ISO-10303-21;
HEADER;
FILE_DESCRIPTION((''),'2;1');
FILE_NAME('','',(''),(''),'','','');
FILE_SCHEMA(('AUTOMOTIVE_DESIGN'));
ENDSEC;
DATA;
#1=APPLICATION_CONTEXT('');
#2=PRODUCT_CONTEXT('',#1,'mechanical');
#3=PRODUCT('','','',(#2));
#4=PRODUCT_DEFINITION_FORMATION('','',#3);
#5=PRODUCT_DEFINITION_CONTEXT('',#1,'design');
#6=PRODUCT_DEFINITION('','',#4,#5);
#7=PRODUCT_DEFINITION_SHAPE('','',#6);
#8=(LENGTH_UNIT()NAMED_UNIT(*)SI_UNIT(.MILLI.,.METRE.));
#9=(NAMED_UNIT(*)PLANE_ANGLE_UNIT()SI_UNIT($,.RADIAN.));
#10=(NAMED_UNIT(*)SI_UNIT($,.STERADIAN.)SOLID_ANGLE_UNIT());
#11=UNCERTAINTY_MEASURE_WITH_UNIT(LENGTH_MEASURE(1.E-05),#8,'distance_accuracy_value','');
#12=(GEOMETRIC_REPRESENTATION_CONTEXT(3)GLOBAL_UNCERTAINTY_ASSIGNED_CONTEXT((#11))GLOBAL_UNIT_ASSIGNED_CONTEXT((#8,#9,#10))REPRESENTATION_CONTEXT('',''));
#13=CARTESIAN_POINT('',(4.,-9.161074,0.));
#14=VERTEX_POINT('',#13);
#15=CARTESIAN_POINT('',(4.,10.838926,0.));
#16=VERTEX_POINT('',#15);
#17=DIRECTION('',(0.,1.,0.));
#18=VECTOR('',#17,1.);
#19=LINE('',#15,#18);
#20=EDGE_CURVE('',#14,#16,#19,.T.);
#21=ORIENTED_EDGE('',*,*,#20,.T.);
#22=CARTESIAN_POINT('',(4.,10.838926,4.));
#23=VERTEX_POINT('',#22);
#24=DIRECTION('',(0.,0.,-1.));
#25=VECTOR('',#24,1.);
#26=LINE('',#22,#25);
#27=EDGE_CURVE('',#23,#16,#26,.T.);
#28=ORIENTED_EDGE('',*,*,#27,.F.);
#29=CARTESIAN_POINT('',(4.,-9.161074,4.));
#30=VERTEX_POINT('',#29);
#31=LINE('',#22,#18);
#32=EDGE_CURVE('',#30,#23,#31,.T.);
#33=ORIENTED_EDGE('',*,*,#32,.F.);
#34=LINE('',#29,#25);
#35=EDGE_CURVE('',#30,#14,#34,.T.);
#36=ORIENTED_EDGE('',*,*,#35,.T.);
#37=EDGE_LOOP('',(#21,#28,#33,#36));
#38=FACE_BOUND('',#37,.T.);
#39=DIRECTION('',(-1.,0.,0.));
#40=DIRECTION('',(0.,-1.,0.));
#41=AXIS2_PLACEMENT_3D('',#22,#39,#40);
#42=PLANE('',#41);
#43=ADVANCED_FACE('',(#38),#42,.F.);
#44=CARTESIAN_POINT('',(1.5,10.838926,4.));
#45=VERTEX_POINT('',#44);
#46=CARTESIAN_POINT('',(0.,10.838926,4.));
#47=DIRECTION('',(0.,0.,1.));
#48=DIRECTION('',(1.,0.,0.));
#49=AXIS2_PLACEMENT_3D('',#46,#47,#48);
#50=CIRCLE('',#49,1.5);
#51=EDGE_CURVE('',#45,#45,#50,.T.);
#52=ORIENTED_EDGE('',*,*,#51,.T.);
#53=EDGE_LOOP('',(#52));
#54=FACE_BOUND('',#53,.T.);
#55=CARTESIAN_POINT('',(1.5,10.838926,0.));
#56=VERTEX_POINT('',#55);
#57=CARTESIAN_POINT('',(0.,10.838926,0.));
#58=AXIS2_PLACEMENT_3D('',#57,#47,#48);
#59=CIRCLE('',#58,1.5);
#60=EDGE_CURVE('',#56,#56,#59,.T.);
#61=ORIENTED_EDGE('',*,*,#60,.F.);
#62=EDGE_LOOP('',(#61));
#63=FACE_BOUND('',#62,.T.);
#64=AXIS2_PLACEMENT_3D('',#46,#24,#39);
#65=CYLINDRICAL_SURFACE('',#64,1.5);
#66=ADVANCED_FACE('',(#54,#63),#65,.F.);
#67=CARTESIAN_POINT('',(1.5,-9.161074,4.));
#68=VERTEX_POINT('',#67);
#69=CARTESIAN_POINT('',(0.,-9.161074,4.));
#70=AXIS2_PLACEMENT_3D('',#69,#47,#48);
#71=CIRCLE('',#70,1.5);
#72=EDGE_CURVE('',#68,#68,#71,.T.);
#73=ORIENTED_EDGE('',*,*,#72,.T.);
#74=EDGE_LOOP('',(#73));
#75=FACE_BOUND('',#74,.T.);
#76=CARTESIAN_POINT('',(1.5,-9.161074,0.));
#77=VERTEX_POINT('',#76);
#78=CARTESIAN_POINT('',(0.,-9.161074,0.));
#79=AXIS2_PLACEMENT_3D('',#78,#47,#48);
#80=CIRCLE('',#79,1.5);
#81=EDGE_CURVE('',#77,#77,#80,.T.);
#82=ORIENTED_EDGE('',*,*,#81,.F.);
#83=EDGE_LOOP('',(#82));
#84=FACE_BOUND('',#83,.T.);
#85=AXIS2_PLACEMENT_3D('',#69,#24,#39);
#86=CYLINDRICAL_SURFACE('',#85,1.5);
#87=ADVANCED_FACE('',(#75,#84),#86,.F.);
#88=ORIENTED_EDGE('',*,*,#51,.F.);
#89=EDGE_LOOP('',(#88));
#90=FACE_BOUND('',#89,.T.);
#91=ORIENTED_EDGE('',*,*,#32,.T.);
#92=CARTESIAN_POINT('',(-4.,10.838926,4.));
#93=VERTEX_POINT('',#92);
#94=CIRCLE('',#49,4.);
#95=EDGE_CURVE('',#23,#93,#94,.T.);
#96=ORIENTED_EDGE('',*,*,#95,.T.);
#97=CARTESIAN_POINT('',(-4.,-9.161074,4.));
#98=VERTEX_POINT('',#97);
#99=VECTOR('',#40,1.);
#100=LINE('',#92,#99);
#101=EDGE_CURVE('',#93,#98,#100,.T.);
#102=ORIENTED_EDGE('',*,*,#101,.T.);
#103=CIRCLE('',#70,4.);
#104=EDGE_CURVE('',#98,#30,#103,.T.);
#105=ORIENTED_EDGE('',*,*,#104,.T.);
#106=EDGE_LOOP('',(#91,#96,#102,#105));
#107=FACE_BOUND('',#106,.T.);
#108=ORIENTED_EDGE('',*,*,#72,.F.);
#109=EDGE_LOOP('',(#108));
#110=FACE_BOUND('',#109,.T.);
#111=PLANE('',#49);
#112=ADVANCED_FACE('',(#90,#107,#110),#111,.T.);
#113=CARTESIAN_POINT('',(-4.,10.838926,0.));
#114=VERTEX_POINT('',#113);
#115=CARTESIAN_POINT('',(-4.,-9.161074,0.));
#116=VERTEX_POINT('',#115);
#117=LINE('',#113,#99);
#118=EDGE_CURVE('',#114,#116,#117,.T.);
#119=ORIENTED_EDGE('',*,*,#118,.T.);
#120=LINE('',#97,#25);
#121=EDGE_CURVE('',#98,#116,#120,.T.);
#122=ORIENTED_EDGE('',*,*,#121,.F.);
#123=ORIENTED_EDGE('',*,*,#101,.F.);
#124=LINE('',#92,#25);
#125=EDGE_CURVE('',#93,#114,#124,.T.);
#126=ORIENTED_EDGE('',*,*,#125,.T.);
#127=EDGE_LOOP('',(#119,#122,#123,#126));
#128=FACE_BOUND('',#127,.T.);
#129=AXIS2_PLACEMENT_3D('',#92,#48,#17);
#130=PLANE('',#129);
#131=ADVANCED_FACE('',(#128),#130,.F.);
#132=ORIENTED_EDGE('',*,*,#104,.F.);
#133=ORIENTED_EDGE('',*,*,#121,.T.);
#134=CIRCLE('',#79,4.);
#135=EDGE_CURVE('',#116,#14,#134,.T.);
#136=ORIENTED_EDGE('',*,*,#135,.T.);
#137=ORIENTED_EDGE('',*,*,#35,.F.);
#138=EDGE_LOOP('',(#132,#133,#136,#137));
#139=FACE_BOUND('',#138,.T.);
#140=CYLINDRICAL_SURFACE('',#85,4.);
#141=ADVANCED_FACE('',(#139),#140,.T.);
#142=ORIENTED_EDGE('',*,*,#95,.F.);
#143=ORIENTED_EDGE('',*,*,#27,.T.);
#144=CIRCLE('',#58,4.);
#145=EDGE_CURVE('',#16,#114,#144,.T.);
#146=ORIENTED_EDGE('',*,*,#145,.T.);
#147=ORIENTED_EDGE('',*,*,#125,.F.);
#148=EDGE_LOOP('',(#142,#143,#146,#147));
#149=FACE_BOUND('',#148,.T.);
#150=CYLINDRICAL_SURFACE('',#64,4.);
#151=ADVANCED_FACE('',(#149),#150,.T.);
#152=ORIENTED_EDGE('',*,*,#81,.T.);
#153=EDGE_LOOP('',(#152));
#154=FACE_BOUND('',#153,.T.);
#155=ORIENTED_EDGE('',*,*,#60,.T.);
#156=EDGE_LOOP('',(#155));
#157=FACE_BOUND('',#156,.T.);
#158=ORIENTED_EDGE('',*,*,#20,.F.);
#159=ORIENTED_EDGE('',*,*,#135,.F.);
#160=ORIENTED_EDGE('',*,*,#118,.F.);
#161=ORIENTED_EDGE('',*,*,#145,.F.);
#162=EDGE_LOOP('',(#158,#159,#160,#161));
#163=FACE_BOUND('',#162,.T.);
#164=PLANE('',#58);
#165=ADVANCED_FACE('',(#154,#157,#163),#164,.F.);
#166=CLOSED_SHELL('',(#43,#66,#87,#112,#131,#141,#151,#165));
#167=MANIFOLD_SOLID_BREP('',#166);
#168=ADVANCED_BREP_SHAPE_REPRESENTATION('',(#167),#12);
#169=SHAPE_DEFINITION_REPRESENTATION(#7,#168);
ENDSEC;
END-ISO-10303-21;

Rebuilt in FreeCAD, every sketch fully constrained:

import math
import FreeCAD as App
import Part
import Sketcher

V = App.Vector

doc = App.newDocument("Part")
params = doc.addObject("Spreadsheet::Sheet", "Params")
for row, (alias, value) in enumerate([
    ("sketch1_diameter", "3 mm"),
    ("sketch1_radius", "4 mm"),
    ("sketch1_height", "20 mm"),
    ("pad1_length", "4 mm"),
], start=1):
    params.set(f"A{row}", alias)
    params.set(f"B{row}", "=" + value)
    params.setAlias(f"B{row}", alias)

body = doc.addObject("PartDesign::Body", "Body")

# Sketch on XY plane
sketch1 = body.newObject("Sketcher::SketchObject", "Sketch")
sketch1.AttachmentSupport = (doc.getObject("XY_Plane"), [""])
sketch1.MapMode = "FlatFace"
sketch1.addGeometry(Part.LineSegment(V(4, -9.2, 0), V(4, 10.8, 0)), False)
sketch1.addGeometry(Part.ArcOfCircle(Part.Circle(V(0, 10.8, 0), V(0, 0, 1), 4), math.radians(0), math.radians(180)), False)
sketch1.addGeometry(Part.LineSegment(V(-4, 10.8, 0), V(-4, -9.2, 0)), False)
sketch1.addGeometry(Part.ArcOfCircle(Part.Circle(V(0, -9.2, 0), V(0, 0, 1), 4), math.radians(180), math.radians(360)), False)
sketch1.addGeometry(Part.Circle(V(0, -9.2, 0), V(0, 0, 1), 1.5), False)
sketch1.addGeometry(Part.Circle(V(0, 10.8, 0), V(0, 0, 1), 1.5), False)
sketch1.addConstraint(Sketcher.Constraint("Tangent", 0, 2, 1, 1))
sketch1.addConstraint(Sketcher.Constraint("Tangent", 1, 2, 2, 1))
sketch1.addConstraint(Sketcher.Constraint("Tangent", 2, 2, 3, 1))
sketch1.addConstraint(Sketcher.Constraint("Tangent", 3, 2, 0, 1))
sketch1.addConstraint(Sketcher.Constraint("Vertical", 0))
sketch1.addConstraint(Sketcher.Constraint("Vertical", 2))
sketch1.addConstraint(Sketcher.Constraint("Coincident", 4, 3, 3, 3))
sketch1.addConstraint(Sketcher.Constraint("Coincident", 5, 3, 1, 3))
sketch1.addConstraint(Sketcher.Constraint("Equal", 4, 5))
sketch1.addConstraint(Sketcher.Constraint("PointOnObject", 1, 3, -2))
sketch1.addConstraint(Sketcher.Constraint("Diameter", 4, 3.0))
sketch1.addConstraint(Sketcher.Constraint("Radius", 1, 4.0))
sketch1.addConstraint(Sketcher.Constraint("DistanceY", 0, 1, 0, 2, 20.0))
sketch1.addConstraint(Sketcher.Constraint("DistanceY", -1, 1, 1, 3, 10.838926))
sketch1.setExpression("Constraints[10]", "Params.sketch1_diameter")
sketch1.setExpression("Constraints[11]", "Params.sketch1_radius")
sketch1.setExpression("Constraints[12]", "Params.sketch1_height")
pad1 = body.newObject("PartDesign::Pad", "Pad")
pad1.Profile = sketch1
pad1.setExpression("Length", "Params.pad1_length")

doc.recompute()
